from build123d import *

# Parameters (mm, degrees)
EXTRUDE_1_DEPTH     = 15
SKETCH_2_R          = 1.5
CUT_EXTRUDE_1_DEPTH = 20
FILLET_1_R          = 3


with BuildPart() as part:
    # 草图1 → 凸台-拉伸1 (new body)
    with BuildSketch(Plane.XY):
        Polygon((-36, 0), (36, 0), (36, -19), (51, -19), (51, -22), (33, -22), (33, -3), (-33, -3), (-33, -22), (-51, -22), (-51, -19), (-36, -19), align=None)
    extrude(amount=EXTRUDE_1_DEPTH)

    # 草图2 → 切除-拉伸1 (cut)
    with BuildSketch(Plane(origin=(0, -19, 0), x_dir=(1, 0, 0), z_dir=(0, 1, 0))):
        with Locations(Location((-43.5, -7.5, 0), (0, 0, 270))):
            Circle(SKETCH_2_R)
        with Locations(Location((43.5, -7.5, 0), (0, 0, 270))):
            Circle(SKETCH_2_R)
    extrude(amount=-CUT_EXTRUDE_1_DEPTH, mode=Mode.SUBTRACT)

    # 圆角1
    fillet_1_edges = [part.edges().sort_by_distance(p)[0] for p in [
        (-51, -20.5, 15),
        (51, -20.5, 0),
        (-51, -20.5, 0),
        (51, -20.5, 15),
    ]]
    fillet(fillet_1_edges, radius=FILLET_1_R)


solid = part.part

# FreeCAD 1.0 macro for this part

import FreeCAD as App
import Part
import Sketcher
from FreeCAD import Vector
Q = App.Units.Quantity


def edges_at(feature, points):
    """Names of the edges that pass closest to the given points."""
    edges = feature.Shape.Edges
    near = lambda p: min(range(len(edges)), key=lambda i: edges[i].distToShape(Part.Vertex(*p))[0])
    return sorted({f"Edge{near(p) + 1}" for p in points})


def add_polygon(sketch, points):
    """Adds a closed chain of lines whose ends are joined by coincident constraints."""
    first, n = sketch.GeometryCount, len(points)
    for a, b in zip(points, points[1:] + points[:1]):
        sketch.addGeometry(Part.LineSegment(App.Vector(*a, 0), App.Vector(*b, 0)), False)
    for i in range(n):
        sketch.addConstraint(Sketcher.Constraint("Coincident", first + i, 2, first + (i + 1) % n, 1))

doc = App.newDocument("Part")
params = doc.addObject("Spreadsheet::Sheet", "Params")
for row, (alias, value) in enumerate([
    ("sketch1_width", "72 mm"),
    ("sketch1_width2", "15 mm"),
    ("sketch1_width3", "18 mm"),
    ("sketch1_height", "19 mm"),
    ("sketch1_height2", "3 mm"),
    ("pad1_length", "15 mm"),
    ("sketch2_diameter", "3 mm"),
    ("pocket1_length", "20 mm"),
    ("fillet_radius", "3 mm"),
], start=1):
    params.set(f"A{row}", alias)
    params.set(f"B{row}", "=" + value)
    params.setAlias(f"B{row}", alias)

body = doc.addObject("PartDesign::Body", "Body")

sketch1 = doc.addObject("Sketcher::SketchObject", "Sketch")
body.addObject(sketch1)
sketch1.AttachmentSupport = (doc.XY_Plane, [""])
sketch1.MapMode = "FlatFace"
add_polygon(sketch1, [(36, 0), (-36, 0), (-36, -19), (-51, -19), (-51, -22), (-33, -22), (-33, -3), (33, -3), (33, -22), (51, -22), (51, -19), (36, -19)])
sketch1.addConstraint([
    Sketcher.Constraint("Horizontal", 0),
    Sketcher.Constraint("Vertical", 1),
    Sketcher.Constraint("Horizontal", 2),
    Sketcher.Constraint("Vertical", 3),
    Sketcher.Constraint("Horizontal", 4),
    Sketcher.Constraint("Vertical", 5),
    Sketcher.Constraint("Horizontal", 6),
    Sketcher.Constraint("Vertical", 7),
    Sketcher.Constraint("Horizontal", 8),
    Sketcher.Constraint("Vertical", 9),
    Sketcher.Constraint("Horizontal", 10),
    Sketcher.Constraint("Vertical", 11),
    Sketcher.Constraint("Symmetric", 0, 2, 11, 2, -1, 1),
    Sketcher.Constraint("Symmetric", 4, 2, 7, 2, -2),
    Sketcher.Constraint("Symmetric", 2, 2, 9, 2, -2),
    Sketcher.Constraint("Equal", 1, 5),
    Sketcher.Constraint("DistanceX", 0, 2, 0, 1, Q("72 mm")),
    Sketcher.Constraint("DistanceX", 2, 2, 2, 1, Q("15 mm")),
    Sketcher.Constraint("DistanceX", 4, 1, 4, 2, Q("18 mm")),
    Sketcher.Constraint("DistanceY", 1, 2, 1, 1, Q("19 mm")),
    Sketcher.Constraint("DistanceY", 3, 2, 3, 1, Q("3 mm")),
])
sketch1.setExpression("Constraints[28]", "Params.sketch1_width")
sketch1.setExpression("Constraints[29]", "Params.sketch1_width2")
sketch1.setExpression("Constraints[30]", "Params.sketch1_width3")
sketch1.setExpression("Constraints[31]", "Params.sketch1_height")
sketch1.setExpression("Constraints[32]", "Params.sketch1_height2")
pad1 = doc.addObject("PartDesign::Pad", "Pad")
body.addObject(pad1)
pad1.Profile = sketch1
pad1.setExpression("Length", "Params.pad1_length")

sketch2 = doc.addObject("Sketcher::SketchObject", "Sketch001")
body.addObject(sketch2)
sketch2.AttachmentSupport = (doc.XZ_Plane, [""])
sketch2.MapMode = "FlatFace"
sketch2.AttachmentOffset = App.Placement(Vector(0, 0, 19), App.Rotation())
sketch2.addGeometry([
    Part.Circle(Vector(-43.5, 7.5, 0), Vector(0, 0, 1), 1.5),
    Part.Circle(Vector(43.5, 7.5, 0), Vector(0, 0, 1), 1.5),
], False)
sketch2.addConstraint([
    Sketcher.Constraint("Equal", 0, 1),
    Sketcher.Constraint("Symmetric", 0, 3, 1, 3, -2),
    Sketcher.Constraint("Diameter", 0, Q("3 mm")),
    Sketcher.Constraint("DistanceX", 0, 3, 1, 3, Q("87 mm")),
    Sketcher.Constraint("DistanceY", -1, 1, 0, 3, Q("7.5 mm")),
])
sketch2.setExpression("Constraints[2]", "Params.sketch2_diameter")
pocket1 = doc.addObject("PartDesign::Pocket", "Pocket")
body.addObject(pocket1)
pocket1.Profile = sketch2
pocket1.setExpression("Length", "Params.pocket1_length")
pocket1.Reversed = True
doc.recompute()

fillet = doc.addObject("PartDesign::Fillet", "Fillet")
body.addObject(fillet)
fillet.Base = (pocket1, edges_at(pocket1, [
    (-51, -20.5, 15),
    (51, -20.5, 0),
    (-51, -20.5, 0),
    (51, -20.5, 15),
]))
fillet.setExpression("Radius", "Params.fillet_radius")

doc.recompute()
